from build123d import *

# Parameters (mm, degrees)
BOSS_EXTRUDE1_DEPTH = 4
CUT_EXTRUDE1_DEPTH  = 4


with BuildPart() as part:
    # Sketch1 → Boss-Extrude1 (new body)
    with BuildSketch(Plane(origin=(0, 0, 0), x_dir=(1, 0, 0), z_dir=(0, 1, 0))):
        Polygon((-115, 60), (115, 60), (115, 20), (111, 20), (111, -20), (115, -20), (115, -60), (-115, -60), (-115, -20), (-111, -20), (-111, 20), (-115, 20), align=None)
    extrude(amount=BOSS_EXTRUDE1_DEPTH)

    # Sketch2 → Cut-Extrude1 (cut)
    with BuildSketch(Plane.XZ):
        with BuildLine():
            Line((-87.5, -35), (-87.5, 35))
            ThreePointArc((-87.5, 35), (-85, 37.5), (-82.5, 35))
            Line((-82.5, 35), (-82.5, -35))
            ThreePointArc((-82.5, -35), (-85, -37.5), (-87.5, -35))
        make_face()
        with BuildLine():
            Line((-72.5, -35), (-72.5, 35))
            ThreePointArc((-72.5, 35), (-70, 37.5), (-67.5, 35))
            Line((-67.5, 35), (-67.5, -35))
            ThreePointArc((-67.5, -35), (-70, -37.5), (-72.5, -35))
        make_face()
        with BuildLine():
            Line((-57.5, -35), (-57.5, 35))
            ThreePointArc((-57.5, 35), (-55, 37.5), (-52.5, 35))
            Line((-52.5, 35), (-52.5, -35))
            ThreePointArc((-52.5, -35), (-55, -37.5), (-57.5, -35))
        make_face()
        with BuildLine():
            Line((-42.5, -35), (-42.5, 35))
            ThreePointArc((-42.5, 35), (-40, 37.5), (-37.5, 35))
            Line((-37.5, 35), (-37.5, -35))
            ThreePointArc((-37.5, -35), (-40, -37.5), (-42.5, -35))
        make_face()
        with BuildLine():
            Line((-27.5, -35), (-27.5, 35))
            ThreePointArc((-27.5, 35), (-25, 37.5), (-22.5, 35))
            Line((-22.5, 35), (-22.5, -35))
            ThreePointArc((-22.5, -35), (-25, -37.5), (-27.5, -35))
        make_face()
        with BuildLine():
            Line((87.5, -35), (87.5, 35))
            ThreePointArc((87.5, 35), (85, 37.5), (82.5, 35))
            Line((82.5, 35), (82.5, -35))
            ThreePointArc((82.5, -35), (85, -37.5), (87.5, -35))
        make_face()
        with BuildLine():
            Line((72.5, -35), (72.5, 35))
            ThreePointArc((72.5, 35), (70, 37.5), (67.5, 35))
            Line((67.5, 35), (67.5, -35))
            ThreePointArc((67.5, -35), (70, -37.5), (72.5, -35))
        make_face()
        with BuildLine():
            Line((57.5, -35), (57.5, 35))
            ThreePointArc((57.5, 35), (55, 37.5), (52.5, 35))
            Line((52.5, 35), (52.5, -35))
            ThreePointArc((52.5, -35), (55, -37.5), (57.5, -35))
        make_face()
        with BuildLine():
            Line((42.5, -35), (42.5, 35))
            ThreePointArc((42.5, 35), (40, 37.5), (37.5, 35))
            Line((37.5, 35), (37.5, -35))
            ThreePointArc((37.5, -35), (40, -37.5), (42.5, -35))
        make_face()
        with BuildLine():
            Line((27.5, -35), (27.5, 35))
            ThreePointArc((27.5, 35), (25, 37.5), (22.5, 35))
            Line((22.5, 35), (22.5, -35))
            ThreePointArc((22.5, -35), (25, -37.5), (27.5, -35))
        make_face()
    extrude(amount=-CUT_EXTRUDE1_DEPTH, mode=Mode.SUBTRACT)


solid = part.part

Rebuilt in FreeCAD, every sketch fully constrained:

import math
import FreeCAD as App
import Part
import Sketcher
from FreeCAD import Vector

doc = App.newDocument("Part")
params = doc.addObject("Spreadsheet::Sheet", "Params")
for row, (alias, value) in enumerate([
    ("sketch1_width", "230 mm"),
    ("sketch1_width2", "4 mm"),
    ("sketch1_height", "40 mm"),
    ("pad1_length", "4 mm"),
    ("sketch2_radius", "2.5 mm"),
    ("sketch2_height", "70 mm"),
    ("pocket1_length", "4 mm"),
], start=1):
    params.set(f"A{row}", alias)
    params.set(f"B{row}", "=" + value)
    params.setAlias(f"B{row}", alias)

body = doc.addObject("PartDesign::Body", "Body")

# Sketch on XZ plane
sketch1 = doc.addObject("Sketcher::SketchObject", "Sketch")
body.addObject(sketch1)
sketch1.AttachmentSupport = (doc.XZ_Plane, [""])
sketch1.MapMode = "FlatFace"
sketch1.addGeometry([
    Part.LineSegment(Vector(115, -60, 0), Vector(-115, -60, 0)),  # 0
    Part.LineSegment(Vector(-115, -60, 0), Vector(-115, -20, 0)),  # 1
    Part.LineSegment(Vector(-115, -20, 0), Vector(-111, -20, 0)),  # 2
    Part.LineSegment(Vector(-111, -20, 0), Vector(-111, 20, 0)),  # 3
    Part.LineSegment(Vector(-111, 20, 0), Vector(-115, 20, 0)),  # 4
    Part.LineSegment(Vector(-115, 20, 0), Vector(-115, 60, 0)),  # 5
    Part.LineSegment(Vector(-115, 60, 0), Vector(115, 60, 0)),  # 6
    Part.LineSegment(Vector(115, 60, 0), Vector(115, 20, 0)),  # 7
    Part.LineSegment(Vector(115, 20, 0), Vector(111, 20, 0)),  # 8
    Part.LineSegment(Vector(111, 20, 0), Vector(111, -20, 0)),  # 9
    Part.LineSegment(Vector(111, -20, 0), Vector(115, -20, 0)),  # 10
    Part.LineSegment(Vector(115, -20, 0), Vector(115, -60, 0)),  # 11
], False)
sketch1.addConstraint([
    Sketcher.Constraint("Coincident", 0, 2, 1, 1),
    Sketcher.Constraint("Coincident", 1, 2, 2, 1),
    Sketcher.Constraint("Coincident", 2, 2, 3, 1),
    Sketcher.Constraint("Coincident", 3, 2, 4, 1),
    Sketcher.Constraint("Coincident", 4, 2, 5, 1),
    Sketcher.Constraint("Coincident", 5, 2, 6, 1),
    Sketcher.Constraint("Coincident", 6, 2, 7, 1),
    Sketcher.Constraint("Coincident", 7, 2, 8, 1),
    Sketcher.Constraint("Coincident", 8, 2, 9, 1),
    Sketcher.Constraint("Coincident", 9, 2, 10, 1),
    Sketcher.Constraint("Coincident", 10, 2, 11, 1),
    Sketcher.Constraint("Coincident", 11, 2, 0, 1),
    Sketcher.Constraint("Horizontal", 0),
    Sketcher.Constraint("Vertical", 1),
    Sketcher.Constraint("Horizontal", 2),
    Sketcher.Constraint("Vertical", 3),
    Sketcher.Constraint("Horizontal", 4),
    Sketcher.Constraint("Vertical", 5),
    Sketcher.Constraint("Horizontal", 6),
    Sketcher.Constraint("Vertical", 7),
    Sketcher.Constraint("Horizontal", 8),
    Sketcher.Constraint("Vertical", 9),
    Sketcher.Constraint("Horizontal", 10),
    Sketcher.Constraint("Vertical", 11),
    Sketcher.Constraint("Symmetric", 0, 2, 6, 2, -1, 1),
    Sketcher.Constraint("Symmetric", 2, 2, 8, 2, -1, 1),
    Sketcher.Constraint("Symmetric", 4, 2, 10, 2, -1, 1),
    Sketcher.Constraint("Symmetric", 4, 2, 7, 2, -2),
    Sketcher.Constraint("Equal", 1, 3),
    Sketcher.Constraint("DistanceX", 0, 2, 0, 1, 230.0),
    Sketcher.Constraint("DistanceX", 2, 1, 2, 2, 4.0),
    Sketcher.Constraint("DistanceY", 1, 1, 1, 2, 40.0),
])
sketch1.setExpression("Constraints[29]", "Params.sketch1_width")
sketch1.setExpression("Constraints[30]", "Params.sketch1_width2")
sketch1.setExpression("Constraints[31]", "Params.sketch1_height")
pad1 = doc.addObject("PartDesign::Pad", "Pad")
body.addObject(pad1)
pad1.Profile = sketch1
pad1.setExpression("Length", "Params.pad1_length")
pad1.Reversed = True

# Sketch on XZ plane
sketch2 = doc.addObject("Sketcher::SketchObject", "Sketch001")
body.addObject(sketch2)
sketch2.AttachmentSupport = (doc.XZ_Plane, [""])
sketch2.MapMode = "FlatFace"
sketch2.addGeometry([
    Part.LineSegment(Vector(-87.5, 35, 0), Vector(-87.5, -35, 0)),  # 0
    Part.ArcOfCircle(Part.Circle(Vector(-85, -35, 0), Vector(0, 0, 1), 2.5), math.radians(180), math.radians(360)),  # 1
    Part.LineSegment(Vector(-82.5, -35, 0), Vector(-82.5, 35, 0)),  # 2
    Part.ArcOfCircle(Part.Circle(Vector(-85, 35, 0), Vector(0, 0, 1), 2.5), math.radians(0), math.radians(180)),  # 3
    Part.LineSegment(Vector(-72.5, 35, 0), Vector(-72.5, -35, 0)),  # 4
    Part.ArcOfCircle(Part.Circle(Vector(-70, -35, 0), Vector(0, 0, 1), 2.5), math.radians(180), math.radians(360)),  # 5
    Part.LineSegment(Vector(-67.5, -35, 0), Vector(-67.5, 35, 0)),  # 6
    Part.ArcOfCircle(Part.Circle(Vector(-70, 35, 0), Vector(0, 0, 1), 2.5), math.radians(0), math.radians(180)),  # 7
    Part.LineSegment(Vector(-57.5, 35, 0), Vector(-57.5, -35, 0)),  # 8
    Part.ArcOfCircle(Part.Circle(Vector(-55, -35, 0), Vector(0, 0, 1), 2.5), math.radians(180), math.radians(360)),  # 9
    Part.LineSegment(Vector(-52.5, -35, 0), Vector(-52.5, 35, 0)),  # 10
    Part.ArcOfCircle(Part.Circle(Vector(-55, 35, 0), Vector(0, 0, 1), 2.5), math.radians(0), math.radians(180)),  # 11
    Part.LineSegment(Vector(-42.5, 35, 0), Vector(-42.5, -35, 0)),  # 12
    Part.ArcOfCircle(Part.Circle(Vector(-40, -35, 0), Vector(0, 0, 1), 2.5), math.radians(180), math.radians(360)),  # 13
    Part.LineSegment(Vector(-37.5, -35, 0), Vector(-37.5, 35, 0)),  # 14
    Part.ArcOfCircle(Part.Circle(Vector(-40, 35, 0), Vector(0, 0, 1), 2.5), math.radians(0), math.radians(180)),  # 15
    Part.LineSegment(Vector(-27.5, 35, 0), Vector(-27.5, -35, 0)),  # 16
    Part.ArcOfCircle(Part.Circle(Vector(-25, -35, 0), Vector(0, 0, 1), 2.5), math.radians(180), math.radians(360)),  # 17
    Part.LineSegment(Vector(-22.5, -35, 0), Vector(-22.5, 35, 0)),  # 18
    Part.ArcOfCircle(Part.Circle(Vector(-25, 35, 0), Vector(0, 0, 1), 2.5), math.radians(0), math.radians(180)),  # 19
    Part.LineSegment(Vector(87.5, -35, 0), Vector(87.5, 35, 0)),  # 20
    Part.ArcOfCircle(Part.Circle(Vector(85, 35, 0), Vector(0, 0, 1), 2.5), math.radians(0), math.radians(180)),  # 21
    Part.LineSegment(Vector(82.5, 35, 0), Vector(82.5, -35, 0)),  # 22
    Part.ArcOfCircle(Part.Circle(Vector(85, -35, 0), Vector(0, 0, 1), 2.5), math.radians(180), math.radians(360)),  # 23
    Part.LineSegment(Vector(72.5, -35, 0), Vector(72.5, 35, 0)),  # 24
    Part.ArcOfCircle(Part.Circle(Vector(70, 35, 0), Vector(0, 0, 1), 2.5), math.radians(0), math.radians(180)),  # 25
    Part.LineSegment(Vector(67.5, 35, 0), Vector(67.5, -35, 0)),  # 26
    Part.ArcOfCircle(Part.Circle(Vector(70, -35, 0), Vector(0, 0, 1), 2.5), math.radians(180), math.radians(360)),  # 27
    Part.LineSegment(Vector(57.5, -35, 0), Vector(57.5, 35, 0)),  # 28
    Part.ArcOfCircle(Part.Circle(Vector(55, 35, 0), Vector(0, 0, 1), 2.5), math.radians(0), math.radians(180)),  # 29
    Part.LineSegment(Vector(52.5, 35, 0), Vector(52.5, -35, 0)),  # 30
    Part.ArcOfCircle(Part.Circle(Vector(55, -35, 0), Vector(0, 0, 1), 2.5), math.radians(180), math.radians(360)),  # 31
    Part.LineSegment(Vector(42.5, -35, 0), Vector(42.5, 35, 0)),  # 32
    Part.ArcOfCircle(Part.Circle(Vector(40, 35, 0), Vector(0, 0, 1), 2.5), math.radians(0), math.radians(180)),  # 33
    Part.LineSegment(Vector(37.5, 35, 0), Vector(37.5, -35, 0)),  # 34
    Part.ArcOfCircle(Part.Circle(Vector(40, -35, 0), Vector(0, 0, 1), 2.5), math.radians(180), math.radians(360)),  # 35
    Part.LineSegment(Vector(27.5, -35, 0), Vector(27.5, 35, 0)),  # 36
    Part.ArcOfCircle(Part.Circle(Vector(25, 35, 0), Vector(0, 0, 1), 2.5), math.radians(0), math.radians(180)),  # 37
    Part.LineSegment(Vector(22.5, 35, 0), Vector(22.5, -35, 0)),  # 38
    Part.ArcOfCircle(Part.Circle(Vector(25, -35, 0), Vector(0, 0, 1), 2.5), math.radians(180), math.radians(360)),  # 39
], False)
sketch2.addConstraint([
    Sketcher.Constraint("Tangent", 0, 2, 1, 1),
    Sketcher.Constraint("Tangent", 1, 2, 2, 1),
    Sketcher.Constraint("Tangent", 2, 2, 3, 1),
    Sketcher.Constraint("Tangent", 3, 2, 0, 1),
    Sketcher.Constraint("Tangent", 4, 2, 5, 1),
    Sketcher.Constraint("Tangent", 5, 2, 6, 1),
    Sketcher.Constraint("Tangent", 6, 2, 7, 1),
    Sketcher.Constraint("Tangent", 7, 2, 4, 1),
    Sketcher.Constraint("Tangent", 8, 2, 9, 1),
    Sketcher.Constraint("Tangent", 9, 2, 10, 1),
    Sketcher.Constraint("Tangent", 10, 2, 11, 1),
    Sketcher.Constraint("Tangent", 11, 2, 8, 1),
    Sketcher.Constraint("Tangent", 12, 2, 13, 1),
    Sketcher.Constraint("Tangent", 13, 2, 14, 1),
    Sketcher.Constraint("Tangent", 14, 2, 15, 1),
    Sketcher.Constraint("Tangent", 15, 2, 12, 1),
    Sketcher.Constraint("Tangent", 16, 2, 17, 1),
    Sketcher.Constraint("Tangent", 17, 2, 18, 1),
    Sketcher.Constraint("Tangent", 18, 2, 19, 1),
    Sketcher.Constraint("Tangent", 19, 2, 16, 1),
    Sketcher.Constraint("Tangent", 20, 2, 21, 1),
    Sketcher.Constraint("Tangent", 21, 2, 22, 1),
    Sketcher.Constraint("Tangent", 22, 2, 23, 1),
    Sketcher.Constraint("Tangent", 23, 2, 20, 1),
    Sketcher.Constraint("Tangent", 24, 2, 25, 1),
    Sketcher.Constraint("Tangent", 25, 2, 26, 1),
    Sketcher.Constraint("Tangent", 26, 2, 27, 1),
    Sketcher.Constraint("Tangent", 27, 2, 24, 1),
    Sketcher.Constraint("Tangent", 28, 2, 29, 1),
    Sketcher.Constraint("Tangent", 29, 2, 30, 1),
    Sketcher.Constraint("Tangent", 30, 2, 31, 1),
    Sketcher.Constraint("Tangent", 31, 2, 28, 1),
    Sketcher.Constraint("Tangent", 32, 2, 33, 1),
    Sketcher.Constraint("Tangent", 33, 2, 34, 1),
    Sketcher.Constraint("Tangent", 34, 2, 35, 1),
    Sketcher.Constraint("Tangent", 35, 2, 32, 1),
    Sketcher.Constraint("Tangent", 36, 2, 37, 1),
    Sketcher.Constraint("Tangent", 37, 2, 38, 1),
    Sketcher.Constraint("Tangent", 38, 2, 39, 1),
    Sketcher.Constraint("Tangent", 39, 2, 36, 1),
    Sketcher.Constraint("Vertical", 0),
    Sketcher.Constraint("Vertical", 2),
    Sketcher.Constraint("Vertical", 4),
    Sketcher.Constraint("Vertical", 6),
    Sketcher.Constraint("Vertical", 8),
    Sketcher.Constraint("Vertical", 10),
    Sketcher.Constraint("Vertical", 12),
    Sketcher.Constraint("Vertical", 14),
    Sketcher.Constraint("Vertical", 16),
    Sketcher.Constraint("Vertical", 18),
    Sketcher.Constraint("Vertical", 20),
    Sketcher.Constraint("Vertical", 22),
    Sketcher.Constraint("Vertical", 24),
    Sketcher.Constraint("Vertical", 26),
    Sketcher.Constraint("Vertical", 28),
    Sketcher.Constraint("Vertical", 30),
    Sketcher.Constraint("Vertical", 32),
    Sketcher.Constraint("Vertical", 34),
    Sketcher.Constraint("Vertical", 36),
    Sketcher.Constraint("Vertical", 38),
    Sketcher.Constraint("Equal", 3, 5),
    Sketcher.Constraint("Equal", 7, 9),
    Sketcher.Constraint("Equal", 11, 13),
    Sketcher.Constraint("Equal", 15, 17),
    Sketcher.Constraint("Equal", 19, 21),
    Sketcher.Constraint("Equal", 23, 25),
    Sketcher.Constraint("Equal", 27, 29),
    Sketcher.Constraint("Equal", 31, 33),
    Sketcher.Constraint("Equal", 35, 37),
    Sketcher.Constraint("Symmetric", 1, 3, 21, 3, -1, 1),
    Sketcher.Constraint("Symmetric", 5, 3, 25, 3, -1, 1),
    Sketcher.Constraint("Symmetric", 9, 3, 29, 3, -1, 1),
    Sketcher.Constraint("Symmetric", 13, 3, 33, 3, -1, 1),
    Sketcher.Constraint("Symmetric", 17, 3, 37, 3, -1, 1),
    Sketcher.Constraint("Horizontal", 1, 3, 5, 3),
    Sketcher.Constraint("Horizontal", 3, 3, 7, 3),
    Sketcher.Constraint("Horizontal", 5, 3, 9, 3),
    Sketcher.Constraint("Horizontal", 7, 3, 11, 3),
    Sketcher.Constraint("Horizontal", 9, 3, 13, 3),
    Sketcher.Constraint("Horizontal", 11, 3, 15, 3),
    Sketcher.Constraint("Horizontal", 13, 3, 17, 3),
    Sketcher.Constraint("Horizontal", 15, 3, 19, 3),
    Sketcher.Constraint("Horizontal", 19, 3, 21, 3),
    Sketcher.Constraint("Horizontal", 17, 3, 23, 3),
    Sketcher.Constraint("Horizontal", 23, 3, 27, 3),
    Sketcher.Constraint("Horizontal", 27, 3, 31, 3),
    Sketcher.Constraint("Horizontal", 31, 3, 35, 3),
    Sketcher.Constraint("Horizontal", 35, 3, 39, 3),
    Sketcher.Constraint("Radius", 1, 2.5),
    Sketcher.Constraint("DistanceY", 0, 2, 0, 1, 70.0),
    Sketcher.Constraint("DistanceX", 1, 3, -1, 1, 85.0),
    Sketcher.Constraint("DistanceX", 5, 3, -1, 1, 70.0),
    Sketcher.Constraint("DistanceX", 9, 3, -1, 1, 55.0),
    Sketcher.Constraint("DistanceX", 13, 3, -1, 1, 40.0),
    Sketcher.Constraint("DistanceX", 17, 3, -1, 1, 25.0),
])
sketch2.setExpression("Constraints[88]", "Params.sketch2_radius")
sketch2.setExpression("Constraints[89]", "Params.sketch2_height")
pocket1 = doc.addObject("PartDesign::Pocket", "Pocket")
body.addObject(pocket1)
pocket1.Profile = sketch2
pocket1.setExpression("Length", "Params.pocket1_length")

doc.recompute()
